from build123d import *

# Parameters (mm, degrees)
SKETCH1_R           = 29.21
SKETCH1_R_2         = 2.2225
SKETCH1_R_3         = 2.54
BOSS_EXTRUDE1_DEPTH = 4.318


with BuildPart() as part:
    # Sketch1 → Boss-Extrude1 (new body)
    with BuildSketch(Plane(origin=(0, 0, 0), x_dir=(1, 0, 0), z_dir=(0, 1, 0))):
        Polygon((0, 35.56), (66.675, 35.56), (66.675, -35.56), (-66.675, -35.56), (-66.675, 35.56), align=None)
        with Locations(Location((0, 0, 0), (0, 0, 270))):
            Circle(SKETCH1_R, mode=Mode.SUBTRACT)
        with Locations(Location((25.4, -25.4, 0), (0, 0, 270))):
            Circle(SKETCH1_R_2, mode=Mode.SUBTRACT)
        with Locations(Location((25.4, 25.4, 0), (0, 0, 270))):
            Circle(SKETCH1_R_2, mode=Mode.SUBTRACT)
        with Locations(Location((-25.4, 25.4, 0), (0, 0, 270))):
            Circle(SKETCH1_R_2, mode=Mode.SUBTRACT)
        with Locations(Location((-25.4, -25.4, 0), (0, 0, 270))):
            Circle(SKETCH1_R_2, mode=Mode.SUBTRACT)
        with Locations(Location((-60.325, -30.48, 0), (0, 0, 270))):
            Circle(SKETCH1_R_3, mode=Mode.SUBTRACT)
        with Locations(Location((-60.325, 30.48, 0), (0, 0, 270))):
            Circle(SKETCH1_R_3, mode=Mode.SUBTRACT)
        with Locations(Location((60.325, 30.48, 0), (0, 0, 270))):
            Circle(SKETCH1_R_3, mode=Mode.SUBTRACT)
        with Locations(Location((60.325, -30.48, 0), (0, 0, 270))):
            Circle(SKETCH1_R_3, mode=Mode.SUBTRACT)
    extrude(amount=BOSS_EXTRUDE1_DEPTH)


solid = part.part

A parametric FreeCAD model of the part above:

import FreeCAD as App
import Part
import Sketcher
from FreeCAD import Vector
Q = App.Units.Quantity

doc = App.newDocument("Part")
body = doc.addObject("PartDesign::Body", "Body")

# Sketch on XZ plane
sketch1 = body.newObject("Sketcher::SketchObject", "Sketch")
sketch1.AttachmentSupport = (doc.getObject("XZ_Plane"), [""])
sketch1.MapMode = "FlatFace"
sketch1.addGeometry([
    Part.LineSegment(Vector(66.7, -35.6, 0), Vector(-66.7, -35.6, 0)),  # 0
    Part.LineSegment(Vector(-66.7, -35.6, 0), Vector(-66.7, 35.6, 0)),  # 1
    Part.LineSegment(Vector(-66.7, 35.6, 0), Vector(66.7, 35.6, 0)),  # 2
    Part.LineSegment(Vector(66.7, 35.6, 0), Vector(66.7, -35.6, 0)),  # 3
    Part.Circle(Vector(60.3, 30.5, 0), Vector(0, 0, 1), 2.5),  # 4
    Part.Circle(Vector(25.4, 25.4, 0), Vector(0, 0, 1), 2.2),  # 5
    Part.Circle(Vector(-25.4, 25.4, 0), Vector(0, 0, 1), 2.2),  # 6
    Part.Circle(Vector(-60.3, 30.5, 0), Vector(0, 0, 1), 2.5),  # 7
    Part.Circle(Vector(60.3, -30.5, 0), Vector(0, 0, 1), 2.5),  # 8
    Part.Circle(Vector(25.4, -25.4, 0), Vector(0, 0, 1), 2.2),  # 9
    Part.Circle(Vector(0, 0, 0), Vector(0, 0, 1), 29.2),  # 10
    Part.Circle(Vector(-25.4, -25.4, 0), Vector(0, 0, 1), 2.2),  # 11
    Part.Circle(Vector(-60.3, -30.5, 0), Vector(0, 0, 1), 2.5),  # 12
], False)
sketch1.addConstraint([
    Sketcher.Constraint("Coincident", 0, 2, 1, 1),
    Sketcher.Constraint("Coincident", 1, 2, 2, 1),
    Sketcher.Constraint("Coincident", 2, 2, 3, 1),
    Sketcher.Constraint("Coincident", 3, 2, 0, 1),
    Sketcher.Constraint("Horizontal", 0),
    Sketcher.Constraint("Vertical", 1),
    Sketcher.Constraint("Horizontal", 2),
    Sketcher.Constraint("Vertical", 3),
    Sketcher.Constraint("Coincident", 10, 3, -1, 1),
    Sketcher.Constraint("Equal", 5, 6),
    Sketcher.Constraint("Equal", 4, 7),
    Sketcher.Constraint("Equal", 7, 8),
    Sketcher.Constraint("Equal", 6, 9),
    Sketcher.Constraint("Equal", 9, 11),
    Sketcher.Constraint("Equal", 8, 12),
    Sketcher.Constraint("Symmetric", 7, 3, 8, 3, -1, 1),
    Sketcher.Constraint("Symmetric", 6, 3, 9, 3, -1, 1),
    Sketcher.Constraint("Symmetric", 5, 3, 11, 3, -1, 1),
    Sketcher.Constraint("Symmetric", 4, 3, 12, 3, -1, 1),
    Sketcher.Constraint("Symmetric", 0, 2, 2, 2, -1, 1),
    Sketcher.Constraint("Symmetric", 5, 3, 6, 3, -2),
    Sketcher.Constraint("Symmetric", 4, 3, 7, 3, -2),
    Sketcher.Constraint("Diameter", 4, Q("0.2 in")),
    Sketcher.Constraint("Diameter", 10, Q("2.3 in")),
    Sketcher.Constraint("Diameter", 5, Q("0.175 in")),
    Sketcher.Constraint("DistanceY", 1, 1, 1, 2, Q("2.8 in")),
    Sketcher.Constraint("DistanceX", -1, 1, 5, 3, Q("1 in")),
    Sketcher.Constraint("DistanceY", -1, 1, 5, 3, Q("1 in")),
    Sketcher.Constraint("DistanceX", 0, 2, 0, 1, Q("5.25 in")),
    Sketcher.Constraint("DistanceY", -1, 1, 4, 3, Q("1.2 in")),
    Sketcher.Constraint("DistanceX", 7, 3, 4, 3, Q("4.75 in")),
])
pad1 = body.newObject("PartDesign::Pad", "Pad")
pad1.Profile = sketch1
pad1.Length = Q("0.17 in")
pad1.Reversed = True

doc.recompute()
